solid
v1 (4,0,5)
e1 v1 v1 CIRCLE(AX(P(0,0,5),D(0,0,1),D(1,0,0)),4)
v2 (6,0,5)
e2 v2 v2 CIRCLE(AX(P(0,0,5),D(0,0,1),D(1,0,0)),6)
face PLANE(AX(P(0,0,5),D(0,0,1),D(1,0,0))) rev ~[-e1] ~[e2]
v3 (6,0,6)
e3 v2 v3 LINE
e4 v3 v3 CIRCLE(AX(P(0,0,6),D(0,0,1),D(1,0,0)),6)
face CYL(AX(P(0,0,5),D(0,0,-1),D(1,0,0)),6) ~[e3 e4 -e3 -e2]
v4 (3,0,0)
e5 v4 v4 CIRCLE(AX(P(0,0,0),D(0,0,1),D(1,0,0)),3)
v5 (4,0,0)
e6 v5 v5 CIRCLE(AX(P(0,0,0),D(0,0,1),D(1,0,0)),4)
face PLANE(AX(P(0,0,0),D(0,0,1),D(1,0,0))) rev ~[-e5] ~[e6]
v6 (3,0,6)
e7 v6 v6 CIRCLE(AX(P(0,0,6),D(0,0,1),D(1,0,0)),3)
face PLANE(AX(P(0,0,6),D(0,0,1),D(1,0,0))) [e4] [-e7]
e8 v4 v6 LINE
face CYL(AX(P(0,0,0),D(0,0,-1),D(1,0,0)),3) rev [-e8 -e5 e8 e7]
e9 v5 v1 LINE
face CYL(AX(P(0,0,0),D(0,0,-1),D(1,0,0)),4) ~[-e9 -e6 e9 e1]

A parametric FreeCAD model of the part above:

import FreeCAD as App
import Part
import Sketcher

V = App.Vector
Q = App.Units.Quantity

doc = App.newDocument("Part")
body = doc.addObject("PartDesign::Body", "Body")

# Sketch on XY plane
sketch1 = body.newObject("Sketcher::SketchObject", "Sketch")
sketch1.AttachmentSupport = (doc.getObject("XY_Plane"), [""])
sketch1.MapMode = "FlatFace"
sketch1.addGeometry([
    Part.Circle(V(0, 0, 0), V(0, 0, 1), 4),
    Part.Circle(V(0, 0, 0), V(0, 0, 1), 3),
], False)
sketch1.addConstraint([
    Sketcher.Constraint("Coincident", 0, 3, -1, 1),
    Sketcher.Constraint("Coincident", 1, 3, -1, 1),
    Sketcher.Constraint("Diameter", 0, Q("8 mm")),
    Sketcher.Constraint("Diameter", 1, Q("6 mm")),
])
pad1 = body.newObject("PartDesign::Pad", "Pad")
pad1.Profile = sketch1
pad1.Length = 5

# Sketch on XY plane
sketch2 = body.newObject("Sketcher::SketchObject", "Sketch001")
sketch2.AttachmentSupport = (doc.getObject("XY_Plane"), [""])
sketch2.MapMode = "FlatFace"
sketch2.AttachmentOffset = App.Placement(V(0, 0, 5), App.Rotation())
sketch2.addGeometry([
    Part.Circle(V(0, 0, 0), V(0, 0, 1), 6),
    Part.Circle(V(0, 0, 0), V(0, 0, 1), 3),
], False)
sketch2.addConstraint([
    Sketcher.Constraint("Coincident", 0, 3, -1, 1),
    Sketcher.Constraint("Coincident", 1, 3, -1, 1),
    Sketcher.Constraint("Diameter", 0, Q("12 mm")),
    Sketcher.Constraint("Diameter", 1, Q("6 mm")),
])
pad2 = body.newObject("PartDesign::Pad", "Pad001")
pad2.Profile = sketch2
pad2.Length = 1

doc.recompute()
